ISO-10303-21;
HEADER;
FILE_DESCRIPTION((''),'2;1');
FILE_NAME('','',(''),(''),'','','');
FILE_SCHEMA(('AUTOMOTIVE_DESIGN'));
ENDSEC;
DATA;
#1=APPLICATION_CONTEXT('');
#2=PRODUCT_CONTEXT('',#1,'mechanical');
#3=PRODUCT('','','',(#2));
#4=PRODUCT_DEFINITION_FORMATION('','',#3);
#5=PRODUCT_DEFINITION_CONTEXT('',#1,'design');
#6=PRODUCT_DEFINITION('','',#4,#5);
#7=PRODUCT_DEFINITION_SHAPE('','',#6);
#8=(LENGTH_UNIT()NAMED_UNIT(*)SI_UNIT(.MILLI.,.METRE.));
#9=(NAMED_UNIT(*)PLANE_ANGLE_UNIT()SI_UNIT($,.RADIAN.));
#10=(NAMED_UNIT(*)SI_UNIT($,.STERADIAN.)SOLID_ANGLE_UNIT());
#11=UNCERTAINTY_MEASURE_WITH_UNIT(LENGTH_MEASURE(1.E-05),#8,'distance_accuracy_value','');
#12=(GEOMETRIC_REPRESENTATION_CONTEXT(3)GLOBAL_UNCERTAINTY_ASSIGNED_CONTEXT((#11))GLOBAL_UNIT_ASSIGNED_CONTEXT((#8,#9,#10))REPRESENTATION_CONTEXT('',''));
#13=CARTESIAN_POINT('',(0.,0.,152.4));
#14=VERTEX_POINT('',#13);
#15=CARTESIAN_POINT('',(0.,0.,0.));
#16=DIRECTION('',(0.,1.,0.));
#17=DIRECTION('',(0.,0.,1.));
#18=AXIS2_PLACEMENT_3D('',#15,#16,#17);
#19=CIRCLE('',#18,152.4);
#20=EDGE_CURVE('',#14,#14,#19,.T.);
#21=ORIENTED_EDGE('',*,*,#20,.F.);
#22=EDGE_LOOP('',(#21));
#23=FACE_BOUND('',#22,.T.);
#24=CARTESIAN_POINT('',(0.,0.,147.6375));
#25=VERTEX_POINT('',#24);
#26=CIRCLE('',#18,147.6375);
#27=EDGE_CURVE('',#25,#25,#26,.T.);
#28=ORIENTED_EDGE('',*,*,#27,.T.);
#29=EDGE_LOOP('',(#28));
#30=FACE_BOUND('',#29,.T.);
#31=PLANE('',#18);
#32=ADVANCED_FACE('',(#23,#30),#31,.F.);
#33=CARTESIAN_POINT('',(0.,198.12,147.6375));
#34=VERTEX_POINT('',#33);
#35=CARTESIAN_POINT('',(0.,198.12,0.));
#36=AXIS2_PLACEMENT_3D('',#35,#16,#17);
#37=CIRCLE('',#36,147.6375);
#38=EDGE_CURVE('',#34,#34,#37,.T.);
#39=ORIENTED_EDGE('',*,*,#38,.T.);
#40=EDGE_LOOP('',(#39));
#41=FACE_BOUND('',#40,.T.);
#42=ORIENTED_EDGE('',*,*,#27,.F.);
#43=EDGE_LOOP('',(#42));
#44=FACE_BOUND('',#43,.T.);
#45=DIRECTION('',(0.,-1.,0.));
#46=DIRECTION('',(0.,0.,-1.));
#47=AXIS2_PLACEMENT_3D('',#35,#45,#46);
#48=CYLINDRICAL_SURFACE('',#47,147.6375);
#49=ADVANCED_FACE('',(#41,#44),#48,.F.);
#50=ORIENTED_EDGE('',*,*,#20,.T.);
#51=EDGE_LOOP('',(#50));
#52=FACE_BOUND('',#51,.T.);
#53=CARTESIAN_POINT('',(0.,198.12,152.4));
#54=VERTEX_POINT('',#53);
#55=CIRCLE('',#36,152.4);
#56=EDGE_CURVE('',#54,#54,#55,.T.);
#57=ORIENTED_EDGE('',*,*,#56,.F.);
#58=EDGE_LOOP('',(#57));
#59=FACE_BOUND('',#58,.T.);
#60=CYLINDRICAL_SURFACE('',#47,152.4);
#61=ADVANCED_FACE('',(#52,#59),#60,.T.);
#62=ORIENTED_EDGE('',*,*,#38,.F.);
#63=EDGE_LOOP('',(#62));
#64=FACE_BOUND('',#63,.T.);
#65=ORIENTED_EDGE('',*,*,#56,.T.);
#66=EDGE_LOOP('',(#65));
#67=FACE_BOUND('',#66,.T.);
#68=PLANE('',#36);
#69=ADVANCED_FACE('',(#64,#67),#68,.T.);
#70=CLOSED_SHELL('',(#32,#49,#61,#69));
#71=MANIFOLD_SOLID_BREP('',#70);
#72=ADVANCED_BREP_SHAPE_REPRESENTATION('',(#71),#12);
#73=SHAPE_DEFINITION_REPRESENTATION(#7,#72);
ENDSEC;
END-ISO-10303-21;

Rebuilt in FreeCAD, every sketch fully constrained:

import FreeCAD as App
import Part
import Sketcher
from FreeCAD import Vector
Q = App.Units.Quantity

doc = App.newDocument("Part")
body = doc.addObject("PartDesign::Body", "Body")

# Sketch on XZ plane
sketch1 = body.newObject("Sketcher::SketchObject", "Sketch")
sketch1.AttachmentSupport = (doc.getObject("XZ_Plane"), [""])
sketch1.MapMode = "FlatFace"
sketch1.addGeometry([
    Part.Circle(Vector(0, 0, 0), Vector(0, 0, 1), 152),
    Part.Circle(Vector(0, 0, 0), Vector(0, 0, 1), 148),
], False)
sketch1.addConstraint([
    Sketcher.Constraint("Coincident", 0, 3, -1, 1),
    Sketcher.Constraint("Coincident", 1, 3, -1, 1),
    Sketcher.Constraint("Diameter", 0, Q("12 in")),
    Sketcher.Constraint("Diameter", 1, Q("11.625 in")),
])
pad1 = body.newObject("PartDesign::Pad", "Pad")
pad1.Profile = sketch1
pad1.Length = Q("7.8 in")
pad1.Reversed = True

doc.recompute()
